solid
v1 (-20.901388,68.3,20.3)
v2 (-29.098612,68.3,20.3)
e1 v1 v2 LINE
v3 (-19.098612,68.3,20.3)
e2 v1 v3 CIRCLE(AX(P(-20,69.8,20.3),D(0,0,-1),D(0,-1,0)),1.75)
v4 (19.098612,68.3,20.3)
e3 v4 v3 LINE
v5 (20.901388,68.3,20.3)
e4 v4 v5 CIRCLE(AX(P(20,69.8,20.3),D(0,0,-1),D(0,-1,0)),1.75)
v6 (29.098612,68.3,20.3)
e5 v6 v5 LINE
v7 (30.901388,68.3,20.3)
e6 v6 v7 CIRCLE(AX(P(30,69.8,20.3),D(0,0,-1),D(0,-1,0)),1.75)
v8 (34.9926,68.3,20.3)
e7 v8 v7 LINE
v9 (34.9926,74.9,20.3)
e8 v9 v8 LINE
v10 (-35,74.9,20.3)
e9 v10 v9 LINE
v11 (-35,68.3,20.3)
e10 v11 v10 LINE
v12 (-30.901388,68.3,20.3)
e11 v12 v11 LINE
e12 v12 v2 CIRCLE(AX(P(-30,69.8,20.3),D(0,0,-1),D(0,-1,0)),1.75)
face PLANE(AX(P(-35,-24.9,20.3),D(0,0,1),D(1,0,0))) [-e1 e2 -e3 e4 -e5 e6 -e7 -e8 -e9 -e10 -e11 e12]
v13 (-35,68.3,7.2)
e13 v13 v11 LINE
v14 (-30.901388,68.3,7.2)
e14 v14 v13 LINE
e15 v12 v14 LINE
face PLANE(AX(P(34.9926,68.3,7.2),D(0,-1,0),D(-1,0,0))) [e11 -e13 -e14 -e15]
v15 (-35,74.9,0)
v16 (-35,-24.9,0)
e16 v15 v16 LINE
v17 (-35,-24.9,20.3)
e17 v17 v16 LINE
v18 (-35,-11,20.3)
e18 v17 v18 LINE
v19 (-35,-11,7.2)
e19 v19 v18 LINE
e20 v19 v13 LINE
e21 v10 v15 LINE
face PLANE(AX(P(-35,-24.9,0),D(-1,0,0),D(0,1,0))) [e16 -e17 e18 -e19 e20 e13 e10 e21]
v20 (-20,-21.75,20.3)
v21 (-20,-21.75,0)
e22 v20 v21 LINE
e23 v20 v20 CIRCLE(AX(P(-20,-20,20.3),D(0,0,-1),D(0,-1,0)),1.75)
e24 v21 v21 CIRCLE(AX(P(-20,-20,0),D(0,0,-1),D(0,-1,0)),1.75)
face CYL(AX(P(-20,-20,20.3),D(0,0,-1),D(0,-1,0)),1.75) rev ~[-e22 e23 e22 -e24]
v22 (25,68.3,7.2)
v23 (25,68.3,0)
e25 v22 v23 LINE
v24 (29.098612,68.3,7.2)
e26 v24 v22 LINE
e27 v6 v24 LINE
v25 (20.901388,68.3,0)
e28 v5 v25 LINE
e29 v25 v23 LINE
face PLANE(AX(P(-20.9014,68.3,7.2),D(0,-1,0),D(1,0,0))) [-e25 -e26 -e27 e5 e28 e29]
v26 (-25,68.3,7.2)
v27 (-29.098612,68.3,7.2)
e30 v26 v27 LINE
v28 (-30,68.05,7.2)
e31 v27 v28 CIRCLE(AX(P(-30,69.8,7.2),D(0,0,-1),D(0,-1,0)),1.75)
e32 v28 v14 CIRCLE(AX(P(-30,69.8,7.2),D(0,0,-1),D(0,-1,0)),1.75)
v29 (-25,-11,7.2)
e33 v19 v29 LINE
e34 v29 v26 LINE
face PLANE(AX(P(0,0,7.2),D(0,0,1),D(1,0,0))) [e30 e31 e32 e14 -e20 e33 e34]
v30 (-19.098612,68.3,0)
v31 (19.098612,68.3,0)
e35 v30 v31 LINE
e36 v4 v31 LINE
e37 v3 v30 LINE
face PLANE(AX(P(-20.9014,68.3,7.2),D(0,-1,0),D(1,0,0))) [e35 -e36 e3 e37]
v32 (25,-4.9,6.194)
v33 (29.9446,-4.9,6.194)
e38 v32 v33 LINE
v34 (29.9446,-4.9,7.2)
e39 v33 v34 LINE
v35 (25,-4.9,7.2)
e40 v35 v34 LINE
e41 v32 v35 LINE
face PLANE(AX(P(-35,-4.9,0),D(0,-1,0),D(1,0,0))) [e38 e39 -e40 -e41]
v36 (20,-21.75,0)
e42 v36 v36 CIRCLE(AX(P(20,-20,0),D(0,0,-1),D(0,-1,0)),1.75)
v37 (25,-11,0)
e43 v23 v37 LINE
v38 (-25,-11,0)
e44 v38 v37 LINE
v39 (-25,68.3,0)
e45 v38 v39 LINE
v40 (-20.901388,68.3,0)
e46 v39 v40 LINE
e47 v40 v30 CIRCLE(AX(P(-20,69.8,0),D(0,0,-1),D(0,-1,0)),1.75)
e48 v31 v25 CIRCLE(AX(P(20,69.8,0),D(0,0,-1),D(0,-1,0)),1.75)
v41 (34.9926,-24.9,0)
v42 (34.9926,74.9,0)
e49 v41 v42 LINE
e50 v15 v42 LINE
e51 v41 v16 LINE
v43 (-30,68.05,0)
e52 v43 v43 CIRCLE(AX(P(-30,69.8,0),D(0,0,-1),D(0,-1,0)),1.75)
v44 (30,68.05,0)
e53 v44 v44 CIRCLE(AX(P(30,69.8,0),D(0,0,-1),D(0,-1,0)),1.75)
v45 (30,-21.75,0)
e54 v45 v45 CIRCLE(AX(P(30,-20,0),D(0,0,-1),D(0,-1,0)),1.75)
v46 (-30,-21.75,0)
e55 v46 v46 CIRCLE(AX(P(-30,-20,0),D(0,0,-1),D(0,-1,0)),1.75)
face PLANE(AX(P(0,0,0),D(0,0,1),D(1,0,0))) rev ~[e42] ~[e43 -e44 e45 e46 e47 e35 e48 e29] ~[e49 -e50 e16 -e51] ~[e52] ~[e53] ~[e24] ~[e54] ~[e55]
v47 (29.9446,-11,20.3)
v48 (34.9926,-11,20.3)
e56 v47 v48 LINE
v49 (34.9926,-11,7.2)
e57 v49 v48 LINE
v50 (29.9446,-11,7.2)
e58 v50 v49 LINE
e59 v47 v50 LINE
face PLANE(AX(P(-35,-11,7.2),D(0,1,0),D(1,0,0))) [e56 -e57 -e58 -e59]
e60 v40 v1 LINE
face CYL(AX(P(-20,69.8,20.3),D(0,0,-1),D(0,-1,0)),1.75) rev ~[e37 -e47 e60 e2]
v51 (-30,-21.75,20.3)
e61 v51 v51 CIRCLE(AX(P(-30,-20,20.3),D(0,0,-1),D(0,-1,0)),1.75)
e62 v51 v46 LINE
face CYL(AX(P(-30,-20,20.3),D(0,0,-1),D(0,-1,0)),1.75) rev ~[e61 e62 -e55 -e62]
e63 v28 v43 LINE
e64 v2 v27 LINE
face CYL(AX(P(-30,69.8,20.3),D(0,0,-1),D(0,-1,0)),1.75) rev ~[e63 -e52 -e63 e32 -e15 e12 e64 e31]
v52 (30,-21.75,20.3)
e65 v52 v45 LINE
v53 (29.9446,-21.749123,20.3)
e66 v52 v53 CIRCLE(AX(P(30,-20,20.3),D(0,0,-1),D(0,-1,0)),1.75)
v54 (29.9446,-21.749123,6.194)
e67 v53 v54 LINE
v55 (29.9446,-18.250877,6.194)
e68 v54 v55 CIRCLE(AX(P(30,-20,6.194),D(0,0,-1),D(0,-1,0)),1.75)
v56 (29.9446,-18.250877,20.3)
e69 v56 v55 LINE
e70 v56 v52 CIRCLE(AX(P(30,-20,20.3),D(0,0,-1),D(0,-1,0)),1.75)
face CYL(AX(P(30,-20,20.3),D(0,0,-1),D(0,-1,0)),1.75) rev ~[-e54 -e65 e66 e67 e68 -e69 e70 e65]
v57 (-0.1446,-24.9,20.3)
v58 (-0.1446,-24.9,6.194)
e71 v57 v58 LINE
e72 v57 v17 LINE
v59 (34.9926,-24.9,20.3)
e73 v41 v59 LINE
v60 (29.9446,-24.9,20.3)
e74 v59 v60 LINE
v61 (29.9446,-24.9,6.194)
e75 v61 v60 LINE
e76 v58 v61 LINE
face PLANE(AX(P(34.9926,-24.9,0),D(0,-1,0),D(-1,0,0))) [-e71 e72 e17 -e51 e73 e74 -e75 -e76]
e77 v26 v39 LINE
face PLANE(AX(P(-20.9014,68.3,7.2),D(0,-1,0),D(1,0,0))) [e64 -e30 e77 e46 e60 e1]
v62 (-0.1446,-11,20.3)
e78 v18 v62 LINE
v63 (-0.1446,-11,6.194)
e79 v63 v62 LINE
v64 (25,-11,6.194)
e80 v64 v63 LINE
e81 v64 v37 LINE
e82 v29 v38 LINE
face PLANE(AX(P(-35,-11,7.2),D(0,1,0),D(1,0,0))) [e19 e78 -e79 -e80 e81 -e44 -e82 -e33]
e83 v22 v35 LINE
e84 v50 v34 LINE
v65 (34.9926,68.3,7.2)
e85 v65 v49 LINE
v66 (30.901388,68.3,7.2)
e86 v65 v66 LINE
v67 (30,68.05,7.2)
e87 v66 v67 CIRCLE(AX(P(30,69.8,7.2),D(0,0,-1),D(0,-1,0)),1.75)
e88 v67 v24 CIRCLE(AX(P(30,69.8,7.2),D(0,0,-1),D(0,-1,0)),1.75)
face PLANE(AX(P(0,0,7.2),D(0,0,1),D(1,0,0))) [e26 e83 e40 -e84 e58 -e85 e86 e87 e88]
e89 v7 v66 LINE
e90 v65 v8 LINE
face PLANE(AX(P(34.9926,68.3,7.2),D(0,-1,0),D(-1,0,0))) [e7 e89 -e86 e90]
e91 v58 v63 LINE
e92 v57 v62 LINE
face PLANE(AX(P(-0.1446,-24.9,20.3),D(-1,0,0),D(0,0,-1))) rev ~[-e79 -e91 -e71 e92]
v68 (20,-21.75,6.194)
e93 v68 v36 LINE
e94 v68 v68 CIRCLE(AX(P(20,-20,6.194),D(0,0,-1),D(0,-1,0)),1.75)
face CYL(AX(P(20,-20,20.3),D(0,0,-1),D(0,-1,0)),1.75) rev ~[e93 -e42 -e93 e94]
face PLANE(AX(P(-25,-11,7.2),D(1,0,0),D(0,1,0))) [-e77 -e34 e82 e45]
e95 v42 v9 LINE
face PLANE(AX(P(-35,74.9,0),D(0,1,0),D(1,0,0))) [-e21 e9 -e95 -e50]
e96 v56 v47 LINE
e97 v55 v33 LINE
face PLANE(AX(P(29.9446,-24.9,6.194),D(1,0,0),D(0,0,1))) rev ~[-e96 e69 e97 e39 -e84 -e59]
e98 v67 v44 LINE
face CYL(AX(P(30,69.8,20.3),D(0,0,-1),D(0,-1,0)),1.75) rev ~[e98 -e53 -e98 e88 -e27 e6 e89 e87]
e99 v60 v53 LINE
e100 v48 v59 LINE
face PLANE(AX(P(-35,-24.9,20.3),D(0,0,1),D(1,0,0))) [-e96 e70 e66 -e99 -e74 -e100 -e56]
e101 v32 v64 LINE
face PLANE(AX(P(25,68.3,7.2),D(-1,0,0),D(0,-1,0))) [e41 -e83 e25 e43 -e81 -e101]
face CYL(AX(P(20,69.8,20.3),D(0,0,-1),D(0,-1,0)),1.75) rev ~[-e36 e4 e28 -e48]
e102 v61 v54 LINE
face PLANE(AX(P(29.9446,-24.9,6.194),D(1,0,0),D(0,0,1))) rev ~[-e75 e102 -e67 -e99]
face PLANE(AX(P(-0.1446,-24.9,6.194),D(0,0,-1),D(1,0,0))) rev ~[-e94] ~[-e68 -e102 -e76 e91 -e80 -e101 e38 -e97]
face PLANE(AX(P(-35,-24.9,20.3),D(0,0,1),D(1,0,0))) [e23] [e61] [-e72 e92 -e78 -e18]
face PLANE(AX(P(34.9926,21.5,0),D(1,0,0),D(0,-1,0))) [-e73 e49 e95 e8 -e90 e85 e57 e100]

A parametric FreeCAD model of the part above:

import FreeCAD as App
import Part
import Sketcher
from FreeCAD import Vector

doc = App.newDocument("Part")
body = doc.addObject("PartDesign::Body", "Body")

sketch1 = doc.addObject("Sketcher::SketchObject", "Sketch")
body.addObject(sketch1)
sketch1.AttachmentSupport = (doc.XY_Plane, [""])
sketch1.MapMode = "FlatFace"
sketch1.addGeometry([
    Part.LineSegment(Vector(-35, -25, 0), Vector(35, -25, 0)),
    Part.LineSegment(Vector(35, -25, 0), Vector(35, 75, 0)),
    Part.LineSegment(Vector(35, 75, 0), Vector(-35, 75, 0)),
    Part.LineSegment(Vector(-35, 75, 0), Vector(-35, -25, 0)),
], False)
sketch1.addConstraint([
    Sketcher.Constraint("Coincident", 0, 2, 1, 1),
    Sketcher.Constraint("Coincident", 1, 2, 2, 1),
    Sketcher.Constraint("Coincident", 2, 2, 3, 1),
    Sketcher.Constraint("Coincident", 3, 2, 0, 1),
    Sketcher.Constraint("Horizontal", 0),
    Sketcher.Constraint("Vertical", 1),
    Sketcher.Constraint("Horizontal", 2),
    Sketcher.Constraint("Vertical", 3),
    Sketcher.Constraint("DistanceY", 1, 1, 1, 2, 99.8),
    Sketcher.Constraint("DistanceX", 2, 2, -1, 1, 35.0),
    Sketcher.Constraint("DistanceY", 0, 2, -1, 1, 24.9),
    Sketcher.Constraint("DistanceX", 0, 1, 0, 2, 69.9926),
])
pad1 = doc.addObject("PartDesign::Pad", "Pad")
body.addObject(pad1)
pad1.Profile = sketch1
pad1.Length = 7.2

sketch2 = doc.addObject("Sketcher::SketchObject", "Sketch001")
body.addObject(sketch2)
sketch2.AttachmentSupport = (doc.XY_Plane, [""])
sketch2.MapMode = "FlatFace"
sketch2.AttachmentOffset = App.Placement(Vector(0, 0, 7.2), App.Rotation())
sketch2.addGeometry([
    Part.LineSegment(Vector(-35, 75, 0), Vector(-35, 68, 0)),
    Part.LineSegment(Vector(-35, 68, 0), Vector(35, 68, 0)),
    Part.LineSegment(Vector(35, 68, 0), Vector(35, 75, 0)),
    Part.LineSegment(Vector(35, 75, 0), Vector(-35, 75, 0)),
    Part.LineSegment(Vector(-35, -25, 0), Vector(35, -25, 0)),
    Part.LineSegment(Vector(35, -25, 0), Vector(35, -11, 0)),
    Part.LineSegment(Vector(35, -11, 0), Vector(-35, -11, 0)),
    Part.LineSegment(Vector(-35, -11, 0), Vector(-35, -25, 0)),
], False)
sketch2.addConstraint([
    Sketcher.Constraint("Coincident", 0, 2, 1, 1),
    Sketcher.Constraint("Coincident", 1, 2, 2, 1),
    Sketcher.Constraint("Coincident", 2, 2, 3, 1),
    Sketcher.Constraint("Coincident", 3, 2, 0, 1),
    Sketcher.Constraint("Coincident", 4, 2, 5, 1),
    Sketcher.Constraint("Coincident", 5, 2, 6, 1),
    Sketcher.Constraint("Coincident", 6, 2, 7, 1),
    Sketcher.Constraint("Coincident", 7, 2, 4, 1),
    Sketcher.Constraint("Vertical", 0),
    Sketcher.Constraint("Horizontal", 1),
    Sketcher.Constraint("Vertical", 2),
    Sketcher.Constraint("Horizontal", 3),
    Sketcher.Constraint("Horizontal", 4),
    Sketcher.Constraint("Vertical", 5),
    Sketcher.Constraint("Horizontal", 6),
    Sketcher.Constraint("Vertical", 7),
    Sketcher.Constraint("Vertical", 2, 2, 4, 2),
    Sketcher.Constraint("Vertical", 3, 2, 6, 2),
    Sketcher.Constraint("DistanceY", 0, 2, 0, 1, 6.6),
    Sketcher.Constraint("DistanceY", 5, 1, 5, 2, 13.9),
    Sketcher.Constraint("DistanceX", 0, 2, -1, 1, 35.0),
    Sketcher.Constraint("DistanceY", 5, 2, -1, 1, 11.0),
    Sketcher.Constraint("DistanceY", -1, 1, 0, 2, 68.3),
    Sketcher.Constraint("DistanceX", 1, 1, 1, 2, 69.9926),
])
pad2 = doc.addObject("PartDesign::Pad", "Pad001")
body.addObject(pad2)
pad2.Profile = sketch2
pad2.Length = 13.1

sketch3 = doc.addObject("Sketcher::SketchObject", "Sketch002")
body.addObject(sketch3)
sketch3.AttachmentSupport = (doc.XY_Plane, [""])
sketch3.MapMode = "FlatFace"
sketch3.AttachmentOffset = App.Placement(Vector(0, 0, 20.3), App.Rotation())
sketch3.addGeometry([
    Part.Circle(Vector(30, -20, 0), Vector(0, 0, 1), 1.8),
    Part.Circle(Vector(20, -20, 0), Vector(0, 0, 1), 1.8),
    Part.Circle(Vector(-20, -20, 0), Vector(0, 0, 1), 1.8),
    Part.Circle(Vector(-30, -20, 0), Vector(0, 0, 1), 1.8),
    Part.Circle(Vector(30, 69.8, 0), Vector(0, 0, 1), 1.8),
    Part.Circle(Vector(20, 69.8, 0), Vector(0, 0, 1), 1.8),
    Part.Circle(Vector(-20, 69.8, 0), Vector(0, 0, 1), 1.8),
    Part.Circle(Vector(-30, 69.8, 0), Vector(0, 0, 1), 1.8),
], False)
sketch3.addConstraint([
    Sketcher.Constraint("Equal", 0, 1),
    Sketcher.Constraint("Equal", 1, 2),
    Sketcher.Constraint("Equal", 2, 3),
    Sketcher.Constraint("Equal", 3, 4),
    Sketcher.Constraint("Equal", 4, 5),
    Sketcher.Constraint("Equal", 5, 6),
    Sketcher.Constraint("Equal", 6, 7),
    Sketcher.Constraint("Symmetric", 1, 3, 2, 3, -2),
    Sketcher.Constraint("Symmetric", 0, 3, 3, 3, -2),
    Sketcher.Constraint("Symmetric", 5, 3, 6, 3, -2),
    Sketcher.Constraint("Symmetric", 4, 3, 7, 3, -2),
    Sketcher.Constraint("Horizontal", 0, 3, 1, 3),
    Sketcher.Constraint("Horizontal", 4, 3, 5, 3),
    Sketcher.Constraint("Vertical", 0, 3, 4, 3),
    Sketcher.Constraint("Vertical", 1, 3, 5, 3),
    Sketcher.Constraint("Diameter", 0, 3.5),
    Sketcher.Constraint("DistanceX", -1, 1, 0, 3, 30.0),
    Sketcher.Constraint("DistanceY", 0, 3, -1, 1, 20.0),
    Sketcher.Constraint("DistanceX", -1, 1, 1, 3, 20.0),
    Sketcher.Constraint("DistanceY", -1, 1, 4, 3, 69.8),
])
doc.recompute()
hole = doc.addObject("PartDesign::Hole", "Hole")
body.addObject(hole)
hole.Profile = sketch3
hole.ThreadType = "None"
hole.Diameter = 3.5
hole.DepthType = "ThroughAll"

sketch4 = doc.addObject("Sketcher::SketchObject", "Sketch003")
body.addObject(sketch4)
sketch4.AttachmentSupport = (doc.XY_Plane, [""])
sketch4.MapMode = "FlatFace"
sketch4.AttachmentOffset = App.Placement(Vector(0, 0, 7.2), App.Rotation())
sketch4.addGeometry([
    Part.LineSegment(Vector(-25, 68, 0), Vector(-25, -11, 0)),
    Part.LineSegment(Vector(-25, -11, 0), Vector(25, -11, 0)),
    Part.LineSegment(Vector(25, -11, 0), Vector(25, 68, 0)),
    Part.LineSegment(Vector(25, 68, 0), Vector(-25, 68, 0)),
], False)
sketch4.addConstraint([
    Sketcher.Constraint("Coincident", 0, 2, 1, 1),
    Sketcher.Constraint("Coincident", 1, 2, 2, 1),
    Sketcher.Constraint("Coincident", 2, 2, 3, 1),
    Sketcher.Constraint("Coincident", 3, 2, 0, 1),
    Sketcher.Constraint("Vertical", 0),
    Sketcher.Constraint("Horizontal", 1),
    Sketcher.Constraint("Vertical", 2),
    Sketcher.Constraint("Horizontal", 3),
    Sketcher.Constraint("DistanceX", 1, 1, 1, 2, 50.0),
    Sketcher.Constraint("DistanceY", 0, 2, 0, 1, 79.3),
    Sketcher.Constraint("DistanceX", 0, 2, -1, 1, 25.0),
    Sketcher.Constraint("DistanceY", 0, 2, -1, 1, 11.0),
])
pocket1 = doc.addObject("PartDesign::Pocket", "Pocket")
body.addObject(pocket1)
pocket1.Profile = sketch4
pocket1.Length = 10

sketch5 = doc.addObject("Sketcher::SketchObject", "Sketch004")
body.addObject(sketch5)
sketch5.AttachmentSupport = (doc.XZ_Plane, [""])
sketch5.MapMode = "FlatFace"
sketch5.AttachmentOffset = App.Placement(Vector(0, 0, 24.9), App.Rotation())
sketch5.addGeometry([
    Part.LineSegment(Vector(0, 20, 0), Vector(0, 6, 0)),
    Part.LineSegment(Vector(0, 6, 0), Vector(30, 6, 0)),
    Part.LineSegment(Vector(30, 6, 0), Vector(30, 20, 0)),
    Part.LineSegment(Vector(30, 20, 0), Vector(0, 20, 0)),
], False)
sketch5.addConstraint([
    Sketcher.Constraint("Coincident", 0, 2, 1, 1),
    Sketcher.Constraint("Coincident", 1, 2, 2, 1),
    Sketcher.Constraint("Coincident", 2, 2, 3, 1),
    Sketcher.Constraint("Coincident", 3, 2, 0, 1),
    Sketcher.Constraint("Vertical", 0),
    Sketcher.Constraint("Horizontal", 1),
    Sketcher.Constraint("Vertical", 2),
    Sketcher.Constraint("Horizontal", 3),
    Sketcher.Constraint("DistanceY", -1, 1, 2, 2, 20.3),
    Sketcher.Constraint("DistanceY", 0, 2, 0, 1, 14.106),
    Sketcher.Constraint("DistanceX", 1, 1, 1, 2, 30.0892),
    Sketcher.Constraint("DistanceX", 0, 2, -1, 1, 0.1446),
])
pocket2 = doc.addObject("PartDesign::Pocket", "Pocket001")
body.addObject(pocket2)
pocket2.Profile = sketch5
pocket2.Length = 20

doc.recompute()
